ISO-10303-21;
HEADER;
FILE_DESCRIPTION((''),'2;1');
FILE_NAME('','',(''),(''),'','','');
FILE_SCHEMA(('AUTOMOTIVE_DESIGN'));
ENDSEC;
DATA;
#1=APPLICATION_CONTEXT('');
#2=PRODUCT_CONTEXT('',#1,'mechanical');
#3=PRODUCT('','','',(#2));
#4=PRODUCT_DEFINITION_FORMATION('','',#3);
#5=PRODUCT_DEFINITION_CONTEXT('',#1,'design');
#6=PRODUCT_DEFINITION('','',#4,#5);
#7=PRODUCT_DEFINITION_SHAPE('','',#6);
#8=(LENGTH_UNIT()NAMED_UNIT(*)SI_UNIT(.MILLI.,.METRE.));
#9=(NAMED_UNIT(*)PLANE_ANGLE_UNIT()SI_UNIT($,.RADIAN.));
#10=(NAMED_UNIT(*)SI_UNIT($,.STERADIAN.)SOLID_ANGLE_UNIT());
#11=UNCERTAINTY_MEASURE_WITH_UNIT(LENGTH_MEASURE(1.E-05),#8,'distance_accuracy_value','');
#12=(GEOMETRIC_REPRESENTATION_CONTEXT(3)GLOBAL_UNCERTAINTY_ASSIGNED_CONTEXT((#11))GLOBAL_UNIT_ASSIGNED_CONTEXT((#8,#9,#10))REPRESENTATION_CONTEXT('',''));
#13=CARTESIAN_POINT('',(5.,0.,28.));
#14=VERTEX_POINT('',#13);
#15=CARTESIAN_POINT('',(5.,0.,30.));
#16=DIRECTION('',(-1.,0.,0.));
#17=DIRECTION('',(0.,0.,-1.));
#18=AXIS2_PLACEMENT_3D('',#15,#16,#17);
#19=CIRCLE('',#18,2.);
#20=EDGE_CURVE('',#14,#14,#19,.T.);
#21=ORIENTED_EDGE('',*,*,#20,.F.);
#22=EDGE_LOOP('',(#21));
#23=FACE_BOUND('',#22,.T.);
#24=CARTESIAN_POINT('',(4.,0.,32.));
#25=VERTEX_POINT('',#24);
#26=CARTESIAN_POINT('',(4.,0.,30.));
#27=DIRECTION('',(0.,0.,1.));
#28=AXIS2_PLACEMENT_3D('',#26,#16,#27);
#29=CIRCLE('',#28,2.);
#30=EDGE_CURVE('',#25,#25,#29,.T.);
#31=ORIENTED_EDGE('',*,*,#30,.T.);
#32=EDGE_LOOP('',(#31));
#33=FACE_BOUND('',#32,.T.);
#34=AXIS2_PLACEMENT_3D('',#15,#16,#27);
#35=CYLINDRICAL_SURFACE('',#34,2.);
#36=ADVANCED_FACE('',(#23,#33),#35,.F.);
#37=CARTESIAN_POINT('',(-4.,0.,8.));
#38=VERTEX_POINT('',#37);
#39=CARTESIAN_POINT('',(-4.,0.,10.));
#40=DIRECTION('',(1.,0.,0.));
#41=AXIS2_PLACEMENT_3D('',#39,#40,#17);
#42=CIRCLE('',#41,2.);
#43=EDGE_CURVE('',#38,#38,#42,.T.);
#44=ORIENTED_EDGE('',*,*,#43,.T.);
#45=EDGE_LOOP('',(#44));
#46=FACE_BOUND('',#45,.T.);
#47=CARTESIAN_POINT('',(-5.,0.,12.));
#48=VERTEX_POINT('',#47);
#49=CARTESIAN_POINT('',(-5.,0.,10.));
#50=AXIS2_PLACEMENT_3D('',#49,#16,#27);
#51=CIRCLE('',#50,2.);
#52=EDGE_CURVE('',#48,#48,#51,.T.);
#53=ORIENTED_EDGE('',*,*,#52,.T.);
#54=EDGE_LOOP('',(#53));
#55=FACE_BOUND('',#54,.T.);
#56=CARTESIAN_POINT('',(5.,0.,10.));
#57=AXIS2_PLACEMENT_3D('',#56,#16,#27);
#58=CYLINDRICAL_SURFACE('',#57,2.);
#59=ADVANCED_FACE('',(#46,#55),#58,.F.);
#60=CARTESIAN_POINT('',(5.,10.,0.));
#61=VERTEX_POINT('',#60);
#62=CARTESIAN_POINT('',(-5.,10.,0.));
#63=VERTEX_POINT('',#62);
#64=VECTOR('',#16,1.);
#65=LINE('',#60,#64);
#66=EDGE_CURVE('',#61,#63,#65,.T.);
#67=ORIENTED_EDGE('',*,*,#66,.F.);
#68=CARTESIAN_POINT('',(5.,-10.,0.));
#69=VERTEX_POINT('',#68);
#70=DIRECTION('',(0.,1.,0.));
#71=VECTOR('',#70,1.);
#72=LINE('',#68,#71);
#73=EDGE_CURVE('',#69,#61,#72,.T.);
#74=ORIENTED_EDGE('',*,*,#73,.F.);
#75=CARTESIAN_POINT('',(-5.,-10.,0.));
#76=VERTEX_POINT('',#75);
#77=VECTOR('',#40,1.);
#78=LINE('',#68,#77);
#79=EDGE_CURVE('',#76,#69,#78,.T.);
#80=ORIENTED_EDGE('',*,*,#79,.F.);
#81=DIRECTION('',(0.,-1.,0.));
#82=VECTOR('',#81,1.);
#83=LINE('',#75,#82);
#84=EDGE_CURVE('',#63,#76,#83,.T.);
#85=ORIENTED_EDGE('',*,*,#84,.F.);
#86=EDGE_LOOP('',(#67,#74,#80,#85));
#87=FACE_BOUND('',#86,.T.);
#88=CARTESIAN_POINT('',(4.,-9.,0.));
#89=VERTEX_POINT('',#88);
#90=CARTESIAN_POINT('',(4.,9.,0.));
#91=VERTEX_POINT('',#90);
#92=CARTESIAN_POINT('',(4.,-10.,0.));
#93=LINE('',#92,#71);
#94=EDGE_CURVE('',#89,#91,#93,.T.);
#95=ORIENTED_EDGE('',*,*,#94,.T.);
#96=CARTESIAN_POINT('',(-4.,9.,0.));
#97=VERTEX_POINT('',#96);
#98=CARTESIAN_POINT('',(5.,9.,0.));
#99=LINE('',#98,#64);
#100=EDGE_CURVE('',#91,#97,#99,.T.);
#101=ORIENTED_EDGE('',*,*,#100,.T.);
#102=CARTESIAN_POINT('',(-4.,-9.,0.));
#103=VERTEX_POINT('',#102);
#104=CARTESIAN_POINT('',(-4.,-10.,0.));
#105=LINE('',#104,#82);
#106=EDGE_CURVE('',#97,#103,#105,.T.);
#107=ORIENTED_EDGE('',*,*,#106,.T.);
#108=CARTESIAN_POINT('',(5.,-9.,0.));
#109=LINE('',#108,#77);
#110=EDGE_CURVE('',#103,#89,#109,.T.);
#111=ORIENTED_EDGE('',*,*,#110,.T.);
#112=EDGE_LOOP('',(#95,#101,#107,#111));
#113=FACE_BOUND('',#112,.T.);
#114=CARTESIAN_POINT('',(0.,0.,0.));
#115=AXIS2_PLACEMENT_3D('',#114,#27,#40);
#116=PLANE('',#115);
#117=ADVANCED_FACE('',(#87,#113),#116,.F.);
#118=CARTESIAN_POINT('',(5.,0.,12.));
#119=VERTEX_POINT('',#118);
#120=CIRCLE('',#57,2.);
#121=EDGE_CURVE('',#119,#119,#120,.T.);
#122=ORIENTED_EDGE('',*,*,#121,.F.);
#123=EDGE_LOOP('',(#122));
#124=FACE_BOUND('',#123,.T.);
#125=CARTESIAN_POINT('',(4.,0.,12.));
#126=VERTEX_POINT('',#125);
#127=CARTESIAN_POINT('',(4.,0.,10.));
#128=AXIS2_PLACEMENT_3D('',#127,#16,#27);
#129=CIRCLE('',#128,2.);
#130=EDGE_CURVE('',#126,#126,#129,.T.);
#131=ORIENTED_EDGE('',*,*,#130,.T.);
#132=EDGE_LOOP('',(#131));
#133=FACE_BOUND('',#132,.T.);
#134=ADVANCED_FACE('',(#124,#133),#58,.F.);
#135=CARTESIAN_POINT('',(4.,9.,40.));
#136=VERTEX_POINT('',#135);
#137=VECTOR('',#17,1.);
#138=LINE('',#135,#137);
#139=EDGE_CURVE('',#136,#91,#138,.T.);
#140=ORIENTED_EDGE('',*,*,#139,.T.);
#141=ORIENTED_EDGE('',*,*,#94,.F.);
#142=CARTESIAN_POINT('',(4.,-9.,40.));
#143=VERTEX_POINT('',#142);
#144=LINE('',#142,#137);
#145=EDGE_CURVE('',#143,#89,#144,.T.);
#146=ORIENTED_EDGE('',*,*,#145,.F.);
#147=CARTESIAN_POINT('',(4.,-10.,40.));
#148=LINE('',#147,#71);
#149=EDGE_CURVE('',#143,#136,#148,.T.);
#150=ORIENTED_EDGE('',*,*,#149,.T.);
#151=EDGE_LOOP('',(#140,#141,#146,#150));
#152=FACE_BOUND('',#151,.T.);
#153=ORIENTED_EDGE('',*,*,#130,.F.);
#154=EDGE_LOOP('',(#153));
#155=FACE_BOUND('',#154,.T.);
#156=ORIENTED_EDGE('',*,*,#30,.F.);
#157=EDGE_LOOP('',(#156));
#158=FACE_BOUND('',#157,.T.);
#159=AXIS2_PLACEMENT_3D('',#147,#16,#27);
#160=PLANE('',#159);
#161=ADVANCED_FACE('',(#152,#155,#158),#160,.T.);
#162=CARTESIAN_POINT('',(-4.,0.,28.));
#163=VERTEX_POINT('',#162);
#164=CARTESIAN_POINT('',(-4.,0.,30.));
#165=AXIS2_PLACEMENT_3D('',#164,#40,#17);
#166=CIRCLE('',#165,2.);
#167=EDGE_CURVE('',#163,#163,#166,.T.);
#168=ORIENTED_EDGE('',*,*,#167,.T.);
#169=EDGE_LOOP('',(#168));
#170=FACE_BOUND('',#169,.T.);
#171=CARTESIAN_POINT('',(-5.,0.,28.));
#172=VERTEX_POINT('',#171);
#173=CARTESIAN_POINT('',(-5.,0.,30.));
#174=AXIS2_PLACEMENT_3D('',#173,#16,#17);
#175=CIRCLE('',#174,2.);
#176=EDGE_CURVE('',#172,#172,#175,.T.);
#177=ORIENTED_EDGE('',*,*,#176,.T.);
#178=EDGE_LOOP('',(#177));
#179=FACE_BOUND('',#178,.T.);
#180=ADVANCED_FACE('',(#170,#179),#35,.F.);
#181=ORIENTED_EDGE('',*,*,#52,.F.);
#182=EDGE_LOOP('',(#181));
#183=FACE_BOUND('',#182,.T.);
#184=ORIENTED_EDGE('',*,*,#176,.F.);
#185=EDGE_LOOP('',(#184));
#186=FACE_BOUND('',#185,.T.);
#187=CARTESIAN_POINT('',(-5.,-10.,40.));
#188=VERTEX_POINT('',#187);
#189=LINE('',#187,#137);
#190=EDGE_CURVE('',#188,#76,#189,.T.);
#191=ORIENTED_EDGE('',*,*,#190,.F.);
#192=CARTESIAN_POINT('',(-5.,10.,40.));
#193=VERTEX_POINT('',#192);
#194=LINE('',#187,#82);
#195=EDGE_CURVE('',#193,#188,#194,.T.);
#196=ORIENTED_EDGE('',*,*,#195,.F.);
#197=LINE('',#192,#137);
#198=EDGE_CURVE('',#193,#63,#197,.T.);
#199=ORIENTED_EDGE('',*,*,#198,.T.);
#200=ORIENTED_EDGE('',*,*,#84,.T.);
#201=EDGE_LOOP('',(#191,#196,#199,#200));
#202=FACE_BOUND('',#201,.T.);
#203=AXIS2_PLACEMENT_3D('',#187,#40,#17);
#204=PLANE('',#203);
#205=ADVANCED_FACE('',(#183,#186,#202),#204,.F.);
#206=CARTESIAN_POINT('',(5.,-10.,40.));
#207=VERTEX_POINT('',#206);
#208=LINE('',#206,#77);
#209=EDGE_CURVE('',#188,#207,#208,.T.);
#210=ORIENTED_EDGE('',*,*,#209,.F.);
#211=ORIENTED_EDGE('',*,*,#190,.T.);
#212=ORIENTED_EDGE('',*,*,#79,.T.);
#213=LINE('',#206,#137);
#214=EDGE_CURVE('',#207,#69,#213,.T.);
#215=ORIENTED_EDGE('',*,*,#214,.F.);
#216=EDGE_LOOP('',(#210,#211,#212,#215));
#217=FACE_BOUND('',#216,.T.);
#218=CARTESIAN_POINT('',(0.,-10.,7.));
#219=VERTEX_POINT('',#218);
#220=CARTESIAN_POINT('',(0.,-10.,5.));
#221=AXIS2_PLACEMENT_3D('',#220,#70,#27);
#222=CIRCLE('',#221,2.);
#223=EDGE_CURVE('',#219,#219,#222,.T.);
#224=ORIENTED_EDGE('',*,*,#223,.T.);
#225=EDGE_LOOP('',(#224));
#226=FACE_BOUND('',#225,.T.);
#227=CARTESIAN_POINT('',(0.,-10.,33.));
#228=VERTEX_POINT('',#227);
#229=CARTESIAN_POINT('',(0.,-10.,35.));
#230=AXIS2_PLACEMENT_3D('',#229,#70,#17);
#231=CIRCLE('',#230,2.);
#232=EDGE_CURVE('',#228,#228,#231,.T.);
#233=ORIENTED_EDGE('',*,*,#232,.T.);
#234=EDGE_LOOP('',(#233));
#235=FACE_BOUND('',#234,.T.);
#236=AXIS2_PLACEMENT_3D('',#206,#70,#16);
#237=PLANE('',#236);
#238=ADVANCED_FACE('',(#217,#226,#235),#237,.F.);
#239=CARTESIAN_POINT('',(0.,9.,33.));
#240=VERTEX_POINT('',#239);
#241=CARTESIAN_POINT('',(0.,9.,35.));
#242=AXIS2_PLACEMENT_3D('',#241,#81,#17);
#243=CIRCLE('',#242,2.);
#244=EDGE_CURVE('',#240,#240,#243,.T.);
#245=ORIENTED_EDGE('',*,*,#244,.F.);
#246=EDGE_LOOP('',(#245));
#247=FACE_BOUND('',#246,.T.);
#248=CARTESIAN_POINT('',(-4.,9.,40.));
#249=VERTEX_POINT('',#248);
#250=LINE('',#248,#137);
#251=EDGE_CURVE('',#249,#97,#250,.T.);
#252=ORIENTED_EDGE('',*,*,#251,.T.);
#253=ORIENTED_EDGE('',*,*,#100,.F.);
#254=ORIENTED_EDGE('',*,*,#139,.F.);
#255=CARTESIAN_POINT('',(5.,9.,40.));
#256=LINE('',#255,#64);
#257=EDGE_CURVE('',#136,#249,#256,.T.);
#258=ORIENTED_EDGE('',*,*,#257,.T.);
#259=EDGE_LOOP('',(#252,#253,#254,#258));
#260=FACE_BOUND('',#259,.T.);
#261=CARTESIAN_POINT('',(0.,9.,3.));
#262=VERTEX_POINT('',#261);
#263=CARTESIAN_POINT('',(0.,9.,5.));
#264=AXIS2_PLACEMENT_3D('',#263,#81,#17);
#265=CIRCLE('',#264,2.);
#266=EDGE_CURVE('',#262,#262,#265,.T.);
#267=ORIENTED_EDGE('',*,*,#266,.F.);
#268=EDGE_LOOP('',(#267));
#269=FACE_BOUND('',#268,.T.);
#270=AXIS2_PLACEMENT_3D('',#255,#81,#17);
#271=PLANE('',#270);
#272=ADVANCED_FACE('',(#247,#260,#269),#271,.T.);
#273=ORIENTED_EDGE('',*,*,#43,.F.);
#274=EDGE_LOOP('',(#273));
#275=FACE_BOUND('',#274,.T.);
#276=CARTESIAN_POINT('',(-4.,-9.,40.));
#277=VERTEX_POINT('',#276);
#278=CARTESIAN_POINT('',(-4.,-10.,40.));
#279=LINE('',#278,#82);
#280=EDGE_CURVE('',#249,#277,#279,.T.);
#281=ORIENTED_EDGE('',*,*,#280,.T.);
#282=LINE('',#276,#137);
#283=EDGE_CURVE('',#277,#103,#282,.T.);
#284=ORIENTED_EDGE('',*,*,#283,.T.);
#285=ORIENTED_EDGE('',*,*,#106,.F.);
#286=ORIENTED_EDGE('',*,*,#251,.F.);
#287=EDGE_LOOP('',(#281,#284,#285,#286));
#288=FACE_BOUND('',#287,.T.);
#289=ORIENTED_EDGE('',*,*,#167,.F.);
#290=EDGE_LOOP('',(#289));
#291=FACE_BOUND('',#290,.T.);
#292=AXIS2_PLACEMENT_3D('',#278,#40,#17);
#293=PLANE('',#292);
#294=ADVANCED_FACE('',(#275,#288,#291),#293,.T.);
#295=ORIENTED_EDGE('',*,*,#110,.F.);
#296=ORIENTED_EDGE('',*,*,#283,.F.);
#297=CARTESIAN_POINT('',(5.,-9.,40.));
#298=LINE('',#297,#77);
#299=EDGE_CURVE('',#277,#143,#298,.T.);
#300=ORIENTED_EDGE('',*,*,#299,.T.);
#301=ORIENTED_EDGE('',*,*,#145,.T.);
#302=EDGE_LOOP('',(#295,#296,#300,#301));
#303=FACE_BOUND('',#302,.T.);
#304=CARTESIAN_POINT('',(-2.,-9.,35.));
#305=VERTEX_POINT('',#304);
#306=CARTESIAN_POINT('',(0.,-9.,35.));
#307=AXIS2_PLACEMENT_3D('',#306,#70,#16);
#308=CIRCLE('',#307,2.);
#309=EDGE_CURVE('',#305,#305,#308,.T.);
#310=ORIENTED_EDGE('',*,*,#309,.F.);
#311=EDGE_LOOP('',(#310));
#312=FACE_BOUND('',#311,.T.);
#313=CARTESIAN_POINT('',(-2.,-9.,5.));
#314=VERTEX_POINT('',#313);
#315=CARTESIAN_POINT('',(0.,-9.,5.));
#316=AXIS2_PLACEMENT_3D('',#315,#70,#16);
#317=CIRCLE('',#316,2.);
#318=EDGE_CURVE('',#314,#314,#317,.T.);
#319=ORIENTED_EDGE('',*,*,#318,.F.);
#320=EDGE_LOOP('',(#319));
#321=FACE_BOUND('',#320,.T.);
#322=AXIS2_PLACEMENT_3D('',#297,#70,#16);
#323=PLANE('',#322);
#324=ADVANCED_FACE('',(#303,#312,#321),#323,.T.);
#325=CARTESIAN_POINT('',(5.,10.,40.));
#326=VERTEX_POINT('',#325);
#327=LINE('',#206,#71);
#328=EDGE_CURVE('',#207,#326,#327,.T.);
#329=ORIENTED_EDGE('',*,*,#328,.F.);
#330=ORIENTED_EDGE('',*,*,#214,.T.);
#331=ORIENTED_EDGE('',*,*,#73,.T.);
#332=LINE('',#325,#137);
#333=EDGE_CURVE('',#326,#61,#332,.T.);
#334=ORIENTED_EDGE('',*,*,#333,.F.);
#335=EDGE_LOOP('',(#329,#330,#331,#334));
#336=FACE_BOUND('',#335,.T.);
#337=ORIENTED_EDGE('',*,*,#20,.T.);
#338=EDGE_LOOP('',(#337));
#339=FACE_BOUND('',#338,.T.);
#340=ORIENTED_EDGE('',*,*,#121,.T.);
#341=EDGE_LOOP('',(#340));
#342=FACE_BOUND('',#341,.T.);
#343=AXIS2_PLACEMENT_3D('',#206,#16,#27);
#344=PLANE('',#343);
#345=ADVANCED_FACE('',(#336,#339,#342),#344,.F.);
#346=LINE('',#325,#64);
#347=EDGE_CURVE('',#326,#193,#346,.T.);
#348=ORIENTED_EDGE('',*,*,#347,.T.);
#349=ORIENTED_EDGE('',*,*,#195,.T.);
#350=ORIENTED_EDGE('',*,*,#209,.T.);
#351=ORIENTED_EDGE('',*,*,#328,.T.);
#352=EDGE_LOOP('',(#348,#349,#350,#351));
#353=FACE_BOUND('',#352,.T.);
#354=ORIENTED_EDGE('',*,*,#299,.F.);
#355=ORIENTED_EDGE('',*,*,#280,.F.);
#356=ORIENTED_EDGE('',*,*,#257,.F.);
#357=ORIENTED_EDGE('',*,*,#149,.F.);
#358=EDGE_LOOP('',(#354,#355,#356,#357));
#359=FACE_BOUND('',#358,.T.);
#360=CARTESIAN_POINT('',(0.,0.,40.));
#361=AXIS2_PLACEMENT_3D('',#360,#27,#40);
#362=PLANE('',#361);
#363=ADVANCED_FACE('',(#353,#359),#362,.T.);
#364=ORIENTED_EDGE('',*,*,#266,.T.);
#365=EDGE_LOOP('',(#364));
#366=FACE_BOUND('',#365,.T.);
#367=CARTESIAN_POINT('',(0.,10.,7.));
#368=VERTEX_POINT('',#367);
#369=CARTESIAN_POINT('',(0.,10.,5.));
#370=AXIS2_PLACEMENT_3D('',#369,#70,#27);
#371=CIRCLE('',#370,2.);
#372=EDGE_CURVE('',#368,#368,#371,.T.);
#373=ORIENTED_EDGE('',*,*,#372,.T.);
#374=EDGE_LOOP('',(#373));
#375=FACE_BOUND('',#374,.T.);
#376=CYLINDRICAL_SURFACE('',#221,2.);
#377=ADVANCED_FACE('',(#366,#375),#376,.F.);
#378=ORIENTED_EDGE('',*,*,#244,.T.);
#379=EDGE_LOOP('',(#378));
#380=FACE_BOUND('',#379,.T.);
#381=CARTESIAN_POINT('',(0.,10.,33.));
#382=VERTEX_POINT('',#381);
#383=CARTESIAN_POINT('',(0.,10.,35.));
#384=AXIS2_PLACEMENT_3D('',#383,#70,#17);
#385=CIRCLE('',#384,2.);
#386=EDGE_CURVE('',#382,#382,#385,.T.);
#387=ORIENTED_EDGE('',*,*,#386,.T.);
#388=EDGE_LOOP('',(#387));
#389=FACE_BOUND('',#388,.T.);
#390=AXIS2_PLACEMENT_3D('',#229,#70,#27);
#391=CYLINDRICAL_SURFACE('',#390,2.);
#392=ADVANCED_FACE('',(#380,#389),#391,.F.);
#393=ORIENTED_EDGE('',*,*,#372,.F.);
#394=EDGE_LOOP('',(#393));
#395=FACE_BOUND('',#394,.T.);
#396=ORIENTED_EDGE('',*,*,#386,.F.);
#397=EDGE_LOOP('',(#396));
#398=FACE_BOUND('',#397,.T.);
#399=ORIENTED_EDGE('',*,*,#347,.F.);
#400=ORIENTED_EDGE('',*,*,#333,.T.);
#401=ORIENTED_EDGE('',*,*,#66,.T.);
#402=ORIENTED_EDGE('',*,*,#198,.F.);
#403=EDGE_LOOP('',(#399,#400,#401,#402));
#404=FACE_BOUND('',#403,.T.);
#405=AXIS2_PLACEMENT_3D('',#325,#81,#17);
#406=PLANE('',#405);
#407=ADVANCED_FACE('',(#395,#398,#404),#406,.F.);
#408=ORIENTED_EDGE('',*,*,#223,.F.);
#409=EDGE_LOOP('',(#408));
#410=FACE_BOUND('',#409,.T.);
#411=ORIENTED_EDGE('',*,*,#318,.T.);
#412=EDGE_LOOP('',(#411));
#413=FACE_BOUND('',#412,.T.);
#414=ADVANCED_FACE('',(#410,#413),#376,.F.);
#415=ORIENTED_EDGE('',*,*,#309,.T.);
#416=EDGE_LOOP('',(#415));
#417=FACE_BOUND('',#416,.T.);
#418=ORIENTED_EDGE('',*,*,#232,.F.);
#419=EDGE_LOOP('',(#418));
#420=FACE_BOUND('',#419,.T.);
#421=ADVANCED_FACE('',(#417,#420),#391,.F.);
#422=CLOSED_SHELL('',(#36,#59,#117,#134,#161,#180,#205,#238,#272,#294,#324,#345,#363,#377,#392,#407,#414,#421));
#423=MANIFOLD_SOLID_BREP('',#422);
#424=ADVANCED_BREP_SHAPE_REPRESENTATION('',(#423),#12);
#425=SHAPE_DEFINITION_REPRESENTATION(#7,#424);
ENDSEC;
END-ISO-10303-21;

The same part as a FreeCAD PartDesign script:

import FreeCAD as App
import Part
import Sketcher

V = App.Vector


def add_polygon(sketch, points):
    """Adds a closed chain of lines whose ends are joined by coincident constraints."""
    first, n = sketch.GeometryCount, len(points)
    for a, b in zip(points, points[1:] + points[:1]):
        sketch.addGeometry(Part.LineSegment(App.Vector(*a, 0), App.Vector(*b, 0)), False)
    for i in range(n):
        sketch.addConstraint(Sketcher.Constraint("Coincident", first + i, 2, first + (i + 1) % n, 1))

doc = App.newDocument("Part")
body = doc.addObject("PartDesign::Body", "Body")

sketch1 = body.newObject("Sketcher::SketchObject", "Sketch")
sketch1.AttachmentSupport = (doc.getObject("XY_Plane"), [""])
sketch1.MapMode = "FlatFace"
add_polygon(sketch1, [(-5, 10), (-5, -10), (5, -10), (5, 10)])
add_polygon(sketch1, [(4, -9), (-4, -9), (-4, 9), (4, 9)])
sketch1.addConstraint(Sketcher.Constraint("Vertical", 0))
sketch1.addConstraint(Sketcher.Constraint("Horizontal", 1))
sketch1.addConstraint(Sketcher.Constraint("Vertical", 2))
sketch1.addConstraint(Sketcher.Constraint("Horizontal", 3))
sketch1.addConstraint(Sketcher.Constraint("Horizontal", 4))
sketch1.addConstraint(Sketcher.Constraint("Vertical", 5))
sketch1.addConstraint(Sketcher.Constraint("Horizontal", 6))
sketch1.addConstraint(Sketcher.Constraint("Vertical", 7))
sketch1.addConstraint(Sketcher.Constraint("Symmetric", 0, 2, 2, 2, -1, 1))
sketch1.addConstraint(Sketcher.Constraint("Symmetric", 4, 2, 6, 2, -1, 1))
sketch1.addConstraint(Sketcher.Constraint("DistanceX", 1, 1, 1, 2, 10.0))
sketch1.addConstraint(Sketcher.Constraint("DistanceX", 4, 2, 4, 1, 8.0))
sketch1.addConstraint(Sketcher.Constraint("DistanceY", 0, 2, 0, 1, 20.0))
sketch1.addConstraint(Sketcher.Constraint("DistanceY", 5, 1, 5, 2, 18.0))
pad1 = body.newObject("PartDesign::Pad", "Pad")
pad1.Profile = sketch1
pad1.Length = 40

sketch2 = body.newObject("Sketcher::SketchObject", "Sketch001")
sketch2.AttachmentSupport = (doc.getObject("YZ_Plane"), [""])
sketch2.MapMode = "FlatFace"
sketch2.AttachmentOffset = App.Placement(V(0, 0, -5), App.Rotation())
sketch2.addGeometry(Part.Circle(V(0, 10, 0), V(0, 0, 1), 2), False)
sketch2.addGeometry(Part.Circle(V(0, 30, 0), V(0, 0, 1), 2), False)
sketch2.addConstraint(Sketcher.Constraint("Equal", 0, 1))
sketch2.addConstraint(Sketcher.Constraint("PointOnObject", 0, 3, -2))
sketch2.addConstraint(Sketcher.Constraint("PointOnObject", 1, 3, -2))
sketch2.addConstraint(Sketcher.Constraint("Diameter", 0, 4.0))
sketch2.addConstraint(Sketcher.Constraint("DistanceY", -1, 1, 0, 3, 10.0))
sketch2.addConstraint(Sketcher.Constraint("DistanceY", -1, 1, 1, 3, 30.0))
pocket1 = body.newObject("PartDesign::Pocket", "Pocket")
pocket1.Profile = sketch2
pocket1.Type = "ThroughAll"
pocket1.Reversed = True

sketch3 = body.newObject("Sketcher::SketchObject", "Sketch002")
sketch3.AttachmentSupport = (doc.getObject("XZ_Plane"), [""])
sketch3.MapMode = "FlatFace"
sketch3.AttachmentOffset = App.Placement(V(0, 0, -10), App.Rotation())
sketch3.addGeometry(Part.Circle(V(0, 5, 0), V(0, 0, 1), 2), False)
sketch3.addGeometry(Part.Circle(V(0, 35, 0), V(0, 0, 1), 2), False)
sketch3.addConstraint(Sketcher.Constraint("Equal", 0, 1))
sketch3.addConstraint(Sketcher.Constraint("PointOnObject", 0, 3, -2))
sketch3.addConstraint(Sketcher.Constraint("PointOnObject", 1, 3, -2))
sketch3.addConstraint(Sketcher.Constraint("Diameter", 0, 4.0))
sketch3.addConstraint(Sketcher.Constraint("DistanceY", -1, 1, 0, 3, 5.0))
sketch3.addConstraint(Sketcher.Constraint("DistanceY", -1, 1, 1, 3, 35.0))
pocket2 = body.newObject("PartDesign::Pocket", "Pocket001")
pocket2.Profile = sketch3
pocket2.Type = "ThroughAll"
pocket2.Reversed = True

doc.recompute()
